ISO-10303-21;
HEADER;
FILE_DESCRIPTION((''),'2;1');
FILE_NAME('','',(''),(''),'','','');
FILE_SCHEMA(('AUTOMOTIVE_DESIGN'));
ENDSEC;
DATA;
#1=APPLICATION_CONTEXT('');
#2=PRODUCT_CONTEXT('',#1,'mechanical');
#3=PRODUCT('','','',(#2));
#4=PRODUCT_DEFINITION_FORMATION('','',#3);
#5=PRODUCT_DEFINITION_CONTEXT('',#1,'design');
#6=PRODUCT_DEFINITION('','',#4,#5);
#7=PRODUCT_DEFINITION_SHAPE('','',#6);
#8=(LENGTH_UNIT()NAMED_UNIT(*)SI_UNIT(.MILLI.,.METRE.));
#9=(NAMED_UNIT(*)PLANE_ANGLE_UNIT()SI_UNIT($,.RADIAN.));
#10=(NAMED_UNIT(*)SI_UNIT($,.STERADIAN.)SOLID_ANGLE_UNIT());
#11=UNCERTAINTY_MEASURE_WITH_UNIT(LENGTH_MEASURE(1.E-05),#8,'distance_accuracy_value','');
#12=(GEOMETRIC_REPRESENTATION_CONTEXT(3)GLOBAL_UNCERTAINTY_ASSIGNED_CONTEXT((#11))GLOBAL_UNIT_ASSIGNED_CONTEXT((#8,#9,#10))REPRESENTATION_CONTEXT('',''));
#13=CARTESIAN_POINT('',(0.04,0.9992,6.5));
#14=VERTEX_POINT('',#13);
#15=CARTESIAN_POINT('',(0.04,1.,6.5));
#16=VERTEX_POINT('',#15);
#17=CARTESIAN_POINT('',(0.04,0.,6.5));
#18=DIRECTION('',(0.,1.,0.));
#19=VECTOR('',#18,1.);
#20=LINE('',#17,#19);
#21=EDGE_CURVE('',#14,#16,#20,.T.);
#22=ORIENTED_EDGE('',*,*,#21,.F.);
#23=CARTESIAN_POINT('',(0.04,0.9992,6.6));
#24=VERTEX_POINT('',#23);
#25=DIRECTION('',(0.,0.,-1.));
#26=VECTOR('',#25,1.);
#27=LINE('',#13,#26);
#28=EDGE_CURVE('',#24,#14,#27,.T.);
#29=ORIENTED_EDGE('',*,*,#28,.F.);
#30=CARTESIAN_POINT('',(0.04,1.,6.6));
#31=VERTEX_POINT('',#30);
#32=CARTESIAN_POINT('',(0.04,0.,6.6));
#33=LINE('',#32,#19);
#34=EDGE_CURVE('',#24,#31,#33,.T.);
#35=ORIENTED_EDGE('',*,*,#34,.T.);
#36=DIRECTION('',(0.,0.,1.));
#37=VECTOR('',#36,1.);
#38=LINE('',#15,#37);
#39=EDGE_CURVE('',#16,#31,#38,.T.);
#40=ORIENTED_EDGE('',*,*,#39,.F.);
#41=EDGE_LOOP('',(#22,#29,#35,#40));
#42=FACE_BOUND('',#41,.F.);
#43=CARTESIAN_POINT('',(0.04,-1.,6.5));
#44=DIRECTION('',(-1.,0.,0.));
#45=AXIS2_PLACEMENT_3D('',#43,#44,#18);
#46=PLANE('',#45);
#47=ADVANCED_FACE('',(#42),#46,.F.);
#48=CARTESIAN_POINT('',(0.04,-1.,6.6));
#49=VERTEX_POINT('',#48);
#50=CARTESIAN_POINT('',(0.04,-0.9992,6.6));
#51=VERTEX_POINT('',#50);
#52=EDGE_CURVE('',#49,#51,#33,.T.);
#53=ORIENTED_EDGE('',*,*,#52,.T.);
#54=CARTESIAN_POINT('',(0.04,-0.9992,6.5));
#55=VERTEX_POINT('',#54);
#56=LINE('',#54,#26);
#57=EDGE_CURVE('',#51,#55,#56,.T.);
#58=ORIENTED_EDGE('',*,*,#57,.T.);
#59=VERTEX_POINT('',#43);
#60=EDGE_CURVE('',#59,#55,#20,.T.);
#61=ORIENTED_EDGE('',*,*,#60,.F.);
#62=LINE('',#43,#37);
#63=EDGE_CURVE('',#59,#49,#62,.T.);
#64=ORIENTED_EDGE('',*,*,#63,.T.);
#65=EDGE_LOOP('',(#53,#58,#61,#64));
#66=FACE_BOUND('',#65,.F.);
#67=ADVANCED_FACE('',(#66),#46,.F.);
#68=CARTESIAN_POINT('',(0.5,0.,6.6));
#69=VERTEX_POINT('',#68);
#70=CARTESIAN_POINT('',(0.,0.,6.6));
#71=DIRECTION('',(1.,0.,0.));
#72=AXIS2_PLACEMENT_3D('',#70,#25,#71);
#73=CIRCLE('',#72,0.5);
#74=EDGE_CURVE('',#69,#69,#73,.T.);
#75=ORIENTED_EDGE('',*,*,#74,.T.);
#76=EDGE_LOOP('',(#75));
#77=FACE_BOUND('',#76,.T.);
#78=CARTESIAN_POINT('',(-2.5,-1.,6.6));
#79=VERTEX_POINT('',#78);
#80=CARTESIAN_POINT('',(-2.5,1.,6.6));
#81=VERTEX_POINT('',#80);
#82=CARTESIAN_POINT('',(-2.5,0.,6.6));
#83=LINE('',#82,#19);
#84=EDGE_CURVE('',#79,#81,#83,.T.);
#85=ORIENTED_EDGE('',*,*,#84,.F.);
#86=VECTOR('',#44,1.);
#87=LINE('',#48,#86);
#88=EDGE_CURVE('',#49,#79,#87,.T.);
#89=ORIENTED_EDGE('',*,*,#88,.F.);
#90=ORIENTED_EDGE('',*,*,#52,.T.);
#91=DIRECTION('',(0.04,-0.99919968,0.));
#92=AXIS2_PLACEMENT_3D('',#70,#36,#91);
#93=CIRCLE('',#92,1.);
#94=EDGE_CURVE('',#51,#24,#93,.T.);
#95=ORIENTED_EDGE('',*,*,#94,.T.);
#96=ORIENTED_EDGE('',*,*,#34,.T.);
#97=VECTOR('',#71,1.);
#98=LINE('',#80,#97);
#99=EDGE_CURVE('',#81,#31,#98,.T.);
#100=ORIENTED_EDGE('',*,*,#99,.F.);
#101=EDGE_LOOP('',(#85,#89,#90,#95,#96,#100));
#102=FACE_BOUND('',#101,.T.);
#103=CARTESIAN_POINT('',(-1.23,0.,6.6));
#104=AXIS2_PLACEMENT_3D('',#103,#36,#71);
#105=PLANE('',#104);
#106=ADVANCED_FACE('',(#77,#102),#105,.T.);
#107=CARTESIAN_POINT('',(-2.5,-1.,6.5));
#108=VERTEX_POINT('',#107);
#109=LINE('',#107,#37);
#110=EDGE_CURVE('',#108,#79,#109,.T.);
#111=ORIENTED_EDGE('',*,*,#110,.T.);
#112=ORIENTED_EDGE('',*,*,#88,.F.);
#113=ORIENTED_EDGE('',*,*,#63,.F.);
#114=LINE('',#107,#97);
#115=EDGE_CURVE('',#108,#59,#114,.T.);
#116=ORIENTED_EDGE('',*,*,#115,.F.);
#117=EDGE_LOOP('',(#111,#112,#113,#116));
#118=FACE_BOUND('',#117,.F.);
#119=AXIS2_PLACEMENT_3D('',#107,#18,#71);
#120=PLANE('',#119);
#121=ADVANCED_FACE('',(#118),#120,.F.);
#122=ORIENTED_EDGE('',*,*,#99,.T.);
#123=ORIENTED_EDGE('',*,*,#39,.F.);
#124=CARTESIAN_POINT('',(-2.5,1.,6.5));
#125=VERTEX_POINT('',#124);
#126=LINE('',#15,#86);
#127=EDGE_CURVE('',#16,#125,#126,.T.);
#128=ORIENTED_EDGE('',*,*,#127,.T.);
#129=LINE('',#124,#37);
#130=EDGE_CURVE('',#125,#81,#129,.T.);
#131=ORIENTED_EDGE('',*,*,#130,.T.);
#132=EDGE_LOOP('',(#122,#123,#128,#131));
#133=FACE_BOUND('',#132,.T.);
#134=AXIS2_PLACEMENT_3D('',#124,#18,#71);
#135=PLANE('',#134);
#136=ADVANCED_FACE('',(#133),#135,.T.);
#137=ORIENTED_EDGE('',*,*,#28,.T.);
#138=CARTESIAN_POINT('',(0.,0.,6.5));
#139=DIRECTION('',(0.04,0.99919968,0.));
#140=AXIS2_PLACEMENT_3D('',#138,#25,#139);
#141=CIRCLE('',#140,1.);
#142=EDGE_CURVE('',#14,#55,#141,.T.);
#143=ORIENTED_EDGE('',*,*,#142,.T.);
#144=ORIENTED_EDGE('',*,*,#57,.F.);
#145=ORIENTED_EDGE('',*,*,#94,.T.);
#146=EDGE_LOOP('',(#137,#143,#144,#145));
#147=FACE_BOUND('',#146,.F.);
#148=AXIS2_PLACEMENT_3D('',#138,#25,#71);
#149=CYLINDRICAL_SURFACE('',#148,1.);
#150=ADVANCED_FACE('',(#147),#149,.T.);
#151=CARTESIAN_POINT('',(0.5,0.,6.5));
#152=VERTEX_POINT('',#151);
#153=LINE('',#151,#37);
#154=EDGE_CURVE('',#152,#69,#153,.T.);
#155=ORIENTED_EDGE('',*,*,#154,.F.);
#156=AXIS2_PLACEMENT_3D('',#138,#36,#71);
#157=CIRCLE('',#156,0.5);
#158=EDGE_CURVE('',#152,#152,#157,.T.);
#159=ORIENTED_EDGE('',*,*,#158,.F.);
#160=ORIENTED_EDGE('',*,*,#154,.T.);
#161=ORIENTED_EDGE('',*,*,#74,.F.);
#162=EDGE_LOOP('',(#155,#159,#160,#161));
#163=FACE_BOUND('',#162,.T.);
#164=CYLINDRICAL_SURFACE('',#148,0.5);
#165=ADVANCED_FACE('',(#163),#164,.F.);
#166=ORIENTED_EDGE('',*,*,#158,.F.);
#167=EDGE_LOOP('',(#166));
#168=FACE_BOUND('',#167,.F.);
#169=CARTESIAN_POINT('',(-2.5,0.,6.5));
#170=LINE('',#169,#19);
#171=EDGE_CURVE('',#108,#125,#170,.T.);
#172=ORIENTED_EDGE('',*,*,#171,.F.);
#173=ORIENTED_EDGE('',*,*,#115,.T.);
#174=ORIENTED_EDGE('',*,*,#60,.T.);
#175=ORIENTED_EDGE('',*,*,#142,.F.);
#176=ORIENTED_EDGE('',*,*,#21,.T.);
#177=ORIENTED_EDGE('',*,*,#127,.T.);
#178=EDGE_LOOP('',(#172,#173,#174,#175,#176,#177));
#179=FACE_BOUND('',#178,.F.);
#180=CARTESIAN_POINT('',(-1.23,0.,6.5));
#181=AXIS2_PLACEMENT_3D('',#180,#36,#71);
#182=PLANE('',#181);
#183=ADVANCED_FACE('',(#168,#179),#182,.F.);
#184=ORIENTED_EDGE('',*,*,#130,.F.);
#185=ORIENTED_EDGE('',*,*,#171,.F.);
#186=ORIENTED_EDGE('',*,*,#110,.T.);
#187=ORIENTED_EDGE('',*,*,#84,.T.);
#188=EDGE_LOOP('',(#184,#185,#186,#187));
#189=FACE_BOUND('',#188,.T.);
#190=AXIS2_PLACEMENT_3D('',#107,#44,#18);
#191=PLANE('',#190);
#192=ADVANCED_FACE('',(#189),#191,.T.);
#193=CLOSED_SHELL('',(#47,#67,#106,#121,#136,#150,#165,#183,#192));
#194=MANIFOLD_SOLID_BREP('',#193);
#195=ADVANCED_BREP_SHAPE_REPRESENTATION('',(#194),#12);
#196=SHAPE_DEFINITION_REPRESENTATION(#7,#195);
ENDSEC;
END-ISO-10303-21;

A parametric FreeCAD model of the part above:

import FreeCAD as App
import Part
import Sketcher

doc = App.newDocument("Part")
body = doc.addObject("PartDesign::Body", "Body")

# Sketch on XY plane
sketch1 = body.newObject("Sketcher::SketchObject", "Sketch")
sketch1.AttachmentSupport = (doc.getObject("XY_Plane"), [""])
sketch1.MapMode = "FlatFace"
sketch1.AttachmentOffset = App.Placement(App.Vector(0, 0, 1), App.Rotation())
sketch1.addGeometry(Part.Circle(App.Vector(0, 0, 0), App.Vector(0, 0, 1), 0.5), False)
sketch1.addConstraint(Sketcher.Constraint("Coincident", 0, 3, -1, 1))
sketch1.addConstraint(Sketcher.Constraint("Diameter", 0, 1.0))
pad1 = body.newObject("PartDesign::Pad", "Pad")
pad1.Profile = sketch1
pad1.Length = 0.1
body2 = doc.addObject("PartDesign::Body", "Body001")

# Sketch on XY plane
sketch2 = body2.newObject("Sketcher::SketchObject", "Sketch001")
sketch2.AttachmentSupport = (doc.getObject("XY_Plane001"), [""])
sketch2.MapMode = "FlatFace"
sketch2.AttachmentOffset = App.Placement(App.Vector(0, 0, 1), App.Rotation())
sketch2.addGeometry(Part.LineSegment(App.Vector(-2.5, 1, 0), App.Vector(-2.5, -1, 0)), False)
sketch2.addGeometry(Part.LineSegment(App.Vector(-2.5, -1, 0), App.Vector(0.04, -1, 0)), False)
sketch2.addGeometry(Part.LineSegment(App.Vector(0.04, -1, 0), App.Vector(0.04, 1, 0)), False)
sketch2.addGeometry(Part.LineSegment(App.Vector(0.04, 1, 0), App.Vector(-2.5, 1, 0)), False)
sketch2.addConstraint(Sketcher.Constraint("Coincident", 0, 2, 1, 1))
sketch2.addConstraint(Sketcher.Constraint("Coincident", 1, 2, 2, 1))
sketch2.addConstraint(Sketcher.Constraint("Coincident", 2, 2, 3, 1))
sketch2.addConstraint(Sketcher.Constraint("Coincident", 3, 2, 0, 1))
sketch2.addConstraint(Sketcher.Constraint("Vertical", 0))
sketch2.addConstraint(Sketcher.Constraint("Horizontal", 1))
sketch2.addConstraint(Sketcher.Constraint("Vertical", 2))
sketch2.addConstraint(Sketcher.Constraint("Horizontal", 3))
sketch2.addConstraint(Sketcher.Constraint("DistanceY", 0, 2, 0, 1, 2.0))
sketch2.addConstraint(Sketcher.Constraint("DistanceY", 0, 2, -1, 1, 1.0))
sketch2.addConstraint(Sketcher.Constraint("DistanceX", 1, 1, 1, 2, 2.54))
sketch2.addConstraint(Sketcher.Constraint("DistanceX", 0, 2, -1, 1, 2.5))
pad2 = body2.newObject("PartDesign::Pad", "Pad001")
pad2.Profile = sketch2
pad2.Length = 0.1
doc.recompute()

boolean = body2.newObject("PartDesign::Boolean", "Boolean")
boolean.Type = "Cut"
boolean.addObjects([body])
body3 = doc.addObject("PartDesign::Body", "Body002")

# Sketch on XY plane
sketch3 = body3.newObject("Sketcher::SketchObject", "Sketch002")
sketch3.AttachmentSupport = (doc.getObject("XY_Plane002"), [""])
sketch3.MapMode = "FlatFace"
sketch3.AttachmentOffset = App.Placement(App.Vector(0, 0, 1), App.Rotation())
sketch3.addGeometry(Part.Circle(App.Vector(0, 0, 0), App.Vector(0, 0, 1), 0.5), False)
sketch3.addConstraint(Sketcher.Constraint("Coincident", 0, 3, -1, 1))
sketch3.addConstraint(Sketcher.Constraint("Diameter", 0, 1.0))
pad3 = body3.newObject("PartDesign::Pad", "Pad002")
pad3.Profile = sketch3
pad3.Length = 0.1
body4 = doc.addObject("PartDesign::Body", "Body003")

# Sketch on XY plane
sketch4 = body4.newObject("Sketcher::SketchObject", "Sketch003")
sketch4.AttachmentSupport = (doc.getObject("XY_Plane003"), [""])
sketch4.MapMode = "FlatFace"
sketch4.AttachmentOffset = App.Placement(App.Vector(0, 0, 1), App.Rotation())
sketch4.addGeometry(Part.Circle(App.Vector(0, 0, 0), App.Vector(0, 0, 1), 1), False)
sketch4.addConstraint(Sketcher.Constraint("Coincident", 0, 3, -1, 1))
sketch4.addConstraint(Sketcher.Constraint("Diameter", 0, 2.0))
pad4 = body4.newObject("PartDesign::Pad", "Pad003")
pad4.Profile = sketch4
pad4.Length = 0.1
doc.recompute()

boolean2 = body4.newObject("PartDesign::Boolean", "Boolean001")
boolean2.Type = "Cut"
boolean2.addObjects([body3])
doc.recompute()

boolean3 = body4.newObject("PartDesign::Boolean", "Boolean002")
boolean3.Type = "Fuse"
boolean3.addObjects([body2])
body5 = doc.addObject("PartDesign::Body", "Body004")
doc.recompute()

body4.Placement = App.Placement(App.Vector(0, 0, 5.5), App.Rotation(App.Vector(0, 0, 1), 0))
boolean4 = body5.newObject("PartDesign::Boolean", "Boolean003")
boolean4.Type = "Fuse"
boolean4.addObjects([body4])

doc.recompute()
